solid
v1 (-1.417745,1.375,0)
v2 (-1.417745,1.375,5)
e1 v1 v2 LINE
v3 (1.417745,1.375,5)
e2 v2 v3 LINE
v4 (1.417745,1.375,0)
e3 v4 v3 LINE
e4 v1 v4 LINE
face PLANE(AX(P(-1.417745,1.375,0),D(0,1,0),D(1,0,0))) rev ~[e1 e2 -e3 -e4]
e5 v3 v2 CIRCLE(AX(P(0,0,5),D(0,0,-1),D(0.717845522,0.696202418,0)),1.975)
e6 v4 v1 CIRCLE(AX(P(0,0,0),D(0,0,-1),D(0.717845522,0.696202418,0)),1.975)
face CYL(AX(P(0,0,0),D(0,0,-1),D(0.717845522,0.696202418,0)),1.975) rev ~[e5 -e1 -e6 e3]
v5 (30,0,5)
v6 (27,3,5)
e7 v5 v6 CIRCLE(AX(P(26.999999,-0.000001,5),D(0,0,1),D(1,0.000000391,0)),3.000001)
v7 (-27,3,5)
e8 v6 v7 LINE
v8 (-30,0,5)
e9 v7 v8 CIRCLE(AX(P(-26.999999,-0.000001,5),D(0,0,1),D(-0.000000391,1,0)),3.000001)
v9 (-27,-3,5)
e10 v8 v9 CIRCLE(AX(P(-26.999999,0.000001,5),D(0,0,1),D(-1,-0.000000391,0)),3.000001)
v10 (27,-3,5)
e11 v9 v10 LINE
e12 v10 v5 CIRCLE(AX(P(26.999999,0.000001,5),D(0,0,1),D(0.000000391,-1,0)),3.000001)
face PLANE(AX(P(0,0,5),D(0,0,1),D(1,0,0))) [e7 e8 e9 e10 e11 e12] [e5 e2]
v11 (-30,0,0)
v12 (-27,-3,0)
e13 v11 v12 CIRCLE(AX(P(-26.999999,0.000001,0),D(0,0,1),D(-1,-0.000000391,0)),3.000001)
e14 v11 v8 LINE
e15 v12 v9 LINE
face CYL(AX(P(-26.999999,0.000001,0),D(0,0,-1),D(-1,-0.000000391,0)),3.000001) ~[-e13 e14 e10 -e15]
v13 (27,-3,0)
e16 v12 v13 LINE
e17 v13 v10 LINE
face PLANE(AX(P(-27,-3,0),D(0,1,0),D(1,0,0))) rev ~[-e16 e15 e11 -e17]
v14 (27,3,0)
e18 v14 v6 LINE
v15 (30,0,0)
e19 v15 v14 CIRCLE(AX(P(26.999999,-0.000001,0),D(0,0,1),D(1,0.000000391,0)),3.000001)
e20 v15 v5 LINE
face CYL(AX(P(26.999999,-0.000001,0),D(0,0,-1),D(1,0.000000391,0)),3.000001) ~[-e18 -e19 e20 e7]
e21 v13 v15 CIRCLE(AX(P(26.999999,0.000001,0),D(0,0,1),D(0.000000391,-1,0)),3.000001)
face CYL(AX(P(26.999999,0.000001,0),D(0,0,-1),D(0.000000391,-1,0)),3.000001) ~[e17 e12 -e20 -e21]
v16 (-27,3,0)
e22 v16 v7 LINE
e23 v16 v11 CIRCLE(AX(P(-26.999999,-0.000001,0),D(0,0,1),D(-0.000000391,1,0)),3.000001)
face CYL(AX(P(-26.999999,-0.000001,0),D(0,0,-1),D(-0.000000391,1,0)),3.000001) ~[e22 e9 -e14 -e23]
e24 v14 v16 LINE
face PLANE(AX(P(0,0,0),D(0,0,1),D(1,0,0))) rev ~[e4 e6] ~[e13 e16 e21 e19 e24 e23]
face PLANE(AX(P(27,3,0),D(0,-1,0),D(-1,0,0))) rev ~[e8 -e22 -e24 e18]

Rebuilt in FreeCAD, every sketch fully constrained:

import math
import FreeCAD as App
import Part
import Sketcher
Q = App.Units.Quantity

doc = App.newDocument("Part")
body = doc.addObject("PartDesign::Body", "Body")

sketch1 = body.newObject("Sketcher::SketchObject", "Sketch")
sketch1.AttachmentSupport = (doc.getObject("XY_Plane"), [""])
sketch1.MapMode = "FlatFace"
sketch1.addGeometry([
    Part.LineSegment(App.Vector(-27, -3, 0), App.Vector(27, -3, 0)),
    Part.ArcOfCircle(Part.Circle(App.Vector(27, 0, 0), App.Vector(0, 0, 1), 3), math.radians(-90), math.radians(0)),
    Part.ArcOfCircle(Part.Circle(App.Vector(27, 0, 0), App.Vector(0, 0, 1), 3), math.radians(0), math.radians(90)),
    Part.LineSegment(App.Vector(27, 3, 0), App.Vector(-27, 3, 0)),
    Part.ArcOfCircle(Part.Circle(App.Vector(-27, 0, 0), App.Vector(0, 0, 1), 3), math.radians(90), math.radians(180)),
    Part.ArcOfCircle(Part.Circle(App.Vector(-27, 0, 0), App.Vector(0, 0, 1), 3), math.radians(-180), math.radians(-90)),
    Part.LineSegment(App.Vector(-1.4, 1.4, 0), App.Vector(1.4, 1.4, 0)),
    Part.ArcOfCircle(Part.Circle(App.Vector(0, 0, 0), App.Vector(0, 0, 1), 2), math.radians(136), math.radians(404)),
], False)
sketch1.addConstraint([
    Sketcher.Constraint("Tangent", 0, 2, 1, 1),
    Sketcher.Constraint("Tangent", 1, 2, 2, 1),
    Sketcher.Constraint("Tangent", 2, 2, 3, 1),
    Sketcher.Constraint("Tangent", 3, 2, 4, 1),
    Sketcher.Constraint("Tangent", 4, 2, 5, 1),
    Sketcher.Constraint("Tangent", 5, 2, 0, 1),
    Sketcher.Constraint("Coincident", 6, 1, 7, 1),
    Sketcher.Constraint("Coincident", 7, 2, 6, 2),
    Sketcher.Constraint("Horizontal", 0),
    Sketcher.Constraint("Horizontal", 3),
    Sketcher.Constraint("Horizontal", 6),
    Sketcher.Constraint("Coincident", 7, 3, -1, 1),
    Sketcher.Constraint("Equal", 1, 2),
    Sketcher.Constraint("Equal", 2, 4),
    Sketcher.Constraint("Symmetric", 1, 3, 4, 3, -1, 1),
    Sketcher.Constraint("PointOnObject", 1, 2, -1),
    Sketcher.Constraint("PointOnObject", 4, 2, -1),
    Sketcher.Constraint("Radius", 1, Q("3.000001 mm")),
    Sketcher.Constraint("DistanceX", 0, 1, 0, 2, Q("54 mm")),
    Sketcher.Constraint("Radius", 7, Q("1.975 mm")),
    Sketcher.Constraint("DistanceY", -1, 1, 6, 1, Q("1.375 mm")),
])
pad1 = body.newObject("PartDesign::Pad", "Pad")
pad1.Profile = sketch1
pad1.Length = 5

doc.recompute()
